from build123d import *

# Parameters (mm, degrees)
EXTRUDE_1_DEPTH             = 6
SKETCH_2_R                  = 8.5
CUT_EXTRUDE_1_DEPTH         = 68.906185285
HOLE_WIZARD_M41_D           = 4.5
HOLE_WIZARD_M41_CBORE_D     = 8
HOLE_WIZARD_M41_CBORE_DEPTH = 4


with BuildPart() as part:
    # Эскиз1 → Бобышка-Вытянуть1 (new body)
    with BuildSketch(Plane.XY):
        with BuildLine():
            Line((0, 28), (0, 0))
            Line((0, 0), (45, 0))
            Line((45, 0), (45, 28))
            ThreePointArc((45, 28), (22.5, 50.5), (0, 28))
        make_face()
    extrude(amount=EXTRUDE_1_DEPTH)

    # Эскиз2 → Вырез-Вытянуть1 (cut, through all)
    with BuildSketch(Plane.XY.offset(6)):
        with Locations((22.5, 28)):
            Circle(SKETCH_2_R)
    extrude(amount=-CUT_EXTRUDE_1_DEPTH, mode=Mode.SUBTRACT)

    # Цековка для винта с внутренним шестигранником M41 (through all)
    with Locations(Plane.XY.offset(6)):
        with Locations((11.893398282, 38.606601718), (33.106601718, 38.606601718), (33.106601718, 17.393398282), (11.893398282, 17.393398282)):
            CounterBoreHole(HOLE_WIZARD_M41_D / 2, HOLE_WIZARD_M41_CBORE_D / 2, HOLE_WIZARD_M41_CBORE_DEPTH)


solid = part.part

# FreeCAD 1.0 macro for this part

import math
import FreeCAD as App
import Part
import Sketcher

V = App.Vector
Q = App.Units.Quantity

doc = App.newDocument("Part")
body = doc.addObject("PartDesign::Body", "Body")

# Sketch on XY plane
sketch1 = body.newObject("Sketcher::SketchObject", "Sketch")
sketch1.AttachmentSupport = (doc.getObject("XY_Plane"), [""])
sketch1.MapMode = "FlatFace"
sketch1.addGeometry([
    Part.LineSegment(V(0, 28, 0), V(0, 0, 0)),
    Part.LineSegment(V(0, 0, 0), V(45, 0, 0)),
    Part.LineSegment(V(45, 0, 0), V(45, 28, 0)),
    Part.ArcOfCircle(Part.Circle(V(22.5, 28, 0), V(0, 0, 1), 22.5), math.radians(0), math.radians(180)),
], False)
sketch1.addConstraint([
    Sketcher.Constraint("Coincident", 0, 2, 1, 1),
    Sketcher.Constraint("Coincident", 1, 2, 2, 1),
    Sketcher.Constraint("Tangent", 2, 2, 3, 1),
    Sketcher.Constraint("Tangent", 3, 2, 0, 1),
    Sketcher.Constraint("Vertical", 0),
    Sketcher.Constraint("Horizontal", 1),
    Sketcher.Constraint("Vertical", 2),
    Sketcher.Constraint("Coincident", 0, 2, -1, 1),
    Sketcher.Constraint("Radius", 3, Q("22.5 mm")),
    Sketcher.Constraint("DistanceY", 0, 2, 0, 1, Q("28 mm")),
])
pad1 = body.newObject("PartDesign::Pad", "Pad")
pad1.Profile = sketch1
pad1.Length = 6

# Sketch on XY plane
sketch2 = body.newObject("Sketcher::SketchObject", "Sketch001")
sketch2.AttachmentSupport = (doc.getObject("XY_Plane"), [""])
sketch2.MapMode = "FlatFace"
sketch2.AttachmentOffset = App.Placement(V(0, 0, 6), App.Rotation())
sketch2.addGeometry(Part.Circle(V(22.5, 28, 0), V(0, 0, 1), 8.5), False)
sketch2.addConstraint([
    Sketcher.Constraint("Diameter", 0, Q("17 mm")),
    Sketcher.Constraint("DistanceY", -1, 1, 0, 3, Q("28 mm")),
    Sketcher.Constraint("DistanceX", -1, 1, 0, 3, Q("22.5 mm")),
])
pocket1 = body.newObject("PartDesign::Pocket", "Pocket")
pocket1.Profile = sketch2
pocket1.Type = "ThroughAll"

# Sketch on XY plane
sketch3 = body.newObject("Sketcher::SketchObject", "Sketch002")
sketch3.AttachmentSupport = (doc.getObject("XY_Plane"), [""])
sketch3.MapMode = "FlatFace"
sketch3.AttachmentOffset = App.Placement(V(0, 0, 6), App.Rotation())
sketch3.addGeometry([
    Part.Circle(V(11.893398, 38.606602, 0), V(0, 0, 1), 2.25),
    Part.Circle(V(33.106602, 38.606602, 0), V(0, 0, 1), 2.25),
    Part.Circle(V(33.106602, 17.393398, 0), V(0, 0, 1), 2.25),
    Part.Circle(V(11.893398, 17.393398, 0), V(0, 0, 1), 2.25),
], False)
sketch3.addConstraint([
    Sketcher.Constraint("Equal", 0, 1),
    Sketcher.Constraint("Equal", 1, 2),
    Sketcher.Constraint("Equal", 2, 3),
    Sketcher.Constraint("Horizontal", 0, 3, 1, 3),
    Sketcher.Constraint("Horizontal", 2, 3, 3, 3),
    Sketcher.Constraint("Vertical", 1, 3, 2, 3),
    Sketcher.Constraint("Vertical", 0, 3, 3, 3),
    Sketcher.Constraint("Diameter", 0, Q("4.5 mm")),
    Sketcher.Constraint("DistanceX", -1, 1, 0, 3, Q("11.893398 mm")),
    Sketcher.Constraint("DistanceY", -1, 1, 0, 3, Q("38.606602 mm")),
    Sketcher.Constraint("DistanceX", -1, 1, 1, 3, Q("33.106602 mm")),
    Sketcher.Constraint("DistanceY", -1, 1, 2, 3, Q("17.393398 mm")),
])
doc.recompute()
hole = body.newObject("PartDesign::Hole", "Hole")
hole.Profile = sketch3
hole.ThreadType = "None"
hole.Diameter = 4.5
hole.DepthType = "ThroughAll"
hole.HoleCutType = "Counterbore"
hole.HoleCutDiameter = 8
hole.HoleCutDepth = 4

doc.recompute()
